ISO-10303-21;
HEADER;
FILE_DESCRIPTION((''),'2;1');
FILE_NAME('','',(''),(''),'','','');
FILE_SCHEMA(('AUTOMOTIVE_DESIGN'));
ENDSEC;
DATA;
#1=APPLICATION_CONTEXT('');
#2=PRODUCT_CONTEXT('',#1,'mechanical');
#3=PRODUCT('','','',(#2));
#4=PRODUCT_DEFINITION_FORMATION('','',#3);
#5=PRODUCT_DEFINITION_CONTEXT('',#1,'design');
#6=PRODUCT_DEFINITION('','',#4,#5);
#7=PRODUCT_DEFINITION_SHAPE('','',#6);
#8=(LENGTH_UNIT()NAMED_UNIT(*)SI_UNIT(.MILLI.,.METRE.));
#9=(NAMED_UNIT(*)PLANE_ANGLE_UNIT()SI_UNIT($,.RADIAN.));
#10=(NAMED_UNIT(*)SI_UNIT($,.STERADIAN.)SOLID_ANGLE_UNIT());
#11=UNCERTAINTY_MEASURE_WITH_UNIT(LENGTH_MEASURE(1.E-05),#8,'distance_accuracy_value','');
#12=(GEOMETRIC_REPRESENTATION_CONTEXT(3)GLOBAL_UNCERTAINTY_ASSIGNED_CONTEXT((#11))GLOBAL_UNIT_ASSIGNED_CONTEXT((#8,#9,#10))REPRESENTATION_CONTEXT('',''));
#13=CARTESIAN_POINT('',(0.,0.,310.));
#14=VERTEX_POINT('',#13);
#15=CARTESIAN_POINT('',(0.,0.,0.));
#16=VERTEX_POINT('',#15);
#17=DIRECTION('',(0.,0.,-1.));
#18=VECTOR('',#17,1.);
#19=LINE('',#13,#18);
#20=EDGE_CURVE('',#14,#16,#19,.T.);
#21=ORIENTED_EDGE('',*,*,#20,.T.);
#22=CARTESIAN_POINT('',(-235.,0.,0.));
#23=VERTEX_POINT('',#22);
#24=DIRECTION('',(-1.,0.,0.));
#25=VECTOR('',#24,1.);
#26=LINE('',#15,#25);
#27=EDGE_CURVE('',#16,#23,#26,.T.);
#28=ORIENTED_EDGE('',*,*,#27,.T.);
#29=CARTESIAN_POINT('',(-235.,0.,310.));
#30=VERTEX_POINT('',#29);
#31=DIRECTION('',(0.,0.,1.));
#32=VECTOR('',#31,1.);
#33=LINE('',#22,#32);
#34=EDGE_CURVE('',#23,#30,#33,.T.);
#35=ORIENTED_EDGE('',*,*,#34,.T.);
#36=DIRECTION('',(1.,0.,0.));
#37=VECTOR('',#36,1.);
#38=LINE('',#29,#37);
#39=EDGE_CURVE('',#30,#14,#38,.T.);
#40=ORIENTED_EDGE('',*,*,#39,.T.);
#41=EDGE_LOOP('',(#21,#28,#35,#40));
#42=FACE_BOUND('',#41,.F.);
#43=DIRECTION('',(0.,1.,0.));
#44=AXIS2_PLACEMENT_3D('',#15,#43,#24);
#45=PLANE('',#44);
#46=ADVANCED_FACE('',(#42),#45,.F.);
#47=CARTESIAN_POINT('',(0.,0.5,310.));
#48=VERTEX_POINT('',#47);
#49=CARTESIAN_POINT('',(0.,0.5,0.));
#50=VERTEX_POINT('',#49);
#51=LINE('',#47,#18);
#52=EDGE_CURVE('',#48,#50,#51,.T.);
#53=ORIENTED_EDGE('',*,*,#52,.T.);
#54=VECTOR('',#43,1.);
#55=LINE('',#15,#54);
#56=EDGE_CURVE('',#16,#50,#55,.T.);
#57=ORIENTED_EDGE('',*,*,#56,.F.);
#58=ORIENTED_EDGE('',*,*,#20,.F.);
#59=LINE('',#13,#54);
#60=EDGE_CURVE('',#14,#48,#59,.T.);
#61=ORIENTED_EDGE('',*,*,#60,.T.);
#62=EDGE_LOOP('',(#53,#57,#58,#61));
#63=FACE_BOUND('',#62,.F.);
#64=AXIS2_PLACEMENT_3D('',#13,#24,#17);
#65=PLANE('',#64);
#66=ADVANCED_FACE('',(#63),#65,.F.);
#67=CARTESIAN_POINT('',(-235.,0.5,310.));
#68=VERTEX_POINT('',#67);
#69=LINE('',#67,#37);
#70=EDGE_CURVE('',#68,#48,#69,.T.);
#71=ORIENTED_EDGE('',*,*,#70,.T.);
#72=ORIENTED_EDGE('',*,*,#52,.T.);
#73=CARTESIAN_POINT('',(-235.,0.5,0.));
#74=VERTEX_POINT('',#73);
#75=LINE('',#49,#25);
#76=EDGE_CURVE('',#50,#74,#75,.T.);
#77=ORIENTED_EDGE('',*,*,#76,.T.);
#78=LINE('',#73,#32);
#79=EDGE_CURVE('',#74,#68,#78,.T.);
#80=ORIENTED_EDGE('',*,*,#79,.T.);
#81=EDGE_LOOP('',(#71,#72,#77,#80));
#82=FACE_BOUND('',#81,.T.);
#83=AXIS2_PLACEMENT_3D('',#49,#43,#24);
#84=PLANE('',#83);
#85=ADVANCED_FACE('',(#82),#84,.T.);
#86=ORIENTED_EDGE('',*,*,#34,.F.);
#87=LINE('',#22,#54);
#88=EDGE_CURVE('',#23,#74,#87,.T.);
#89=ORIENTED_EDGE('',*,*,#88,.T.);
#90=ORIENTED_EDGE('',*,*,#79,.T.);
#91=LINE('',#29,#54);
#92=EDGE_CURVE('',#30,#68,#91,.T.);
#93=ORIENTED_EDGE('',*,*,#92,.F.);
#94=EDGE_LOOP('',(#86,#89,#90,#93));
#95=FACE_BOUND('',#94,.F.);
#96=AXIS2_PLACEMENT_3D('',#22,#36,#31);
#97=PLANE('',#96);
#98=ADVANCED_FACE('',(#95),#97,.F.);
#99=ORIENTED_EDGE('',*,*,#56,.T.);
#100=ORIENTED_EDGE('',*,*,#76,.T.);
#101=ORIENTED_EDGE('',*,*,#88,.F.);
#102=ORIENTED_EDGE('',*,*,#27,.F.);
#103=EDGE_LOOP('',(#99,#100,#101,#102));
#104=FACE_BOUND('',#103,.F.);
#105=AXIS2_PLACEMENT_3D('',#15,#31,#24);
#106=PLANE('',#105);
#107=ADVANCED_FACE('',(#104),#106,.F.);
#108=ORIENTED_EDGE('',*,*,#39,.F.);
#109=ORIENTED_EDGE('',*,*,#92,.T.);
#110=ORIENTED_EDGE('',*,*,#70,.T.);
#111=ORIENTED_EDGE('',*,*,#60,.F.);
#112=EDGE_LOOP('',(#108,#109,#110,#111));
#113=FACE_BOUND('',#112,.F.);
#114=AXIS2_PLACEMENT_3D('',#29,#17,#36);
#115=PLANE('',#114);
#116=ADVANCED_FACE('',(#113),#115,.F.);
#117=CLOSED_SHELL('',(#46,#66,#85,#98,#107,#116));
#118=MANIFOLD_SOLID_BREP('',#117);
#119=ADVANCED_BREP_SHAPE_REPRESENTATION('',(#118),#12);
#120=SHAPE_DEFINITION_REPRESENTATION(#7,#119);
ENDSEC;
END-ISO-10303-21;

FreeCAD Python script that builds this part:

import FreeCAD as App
import Part
import Sketcher
from FreeCAD import Vector


def add_polygon(sketch, points):
    """Adds a closed chain of lines whose ends are joined by coincident constraints."""
    first, n = sketch.GeometryCount, len(points)
    for a, b in zip(points, points[1:] + points[:1]):
        sketch.addGeometry(Part.LineSegment(App.Vector(*a, 0), App.Vector(*b, 0)), False)
    for i in range(n):
        sketch.addConstraint(Sketcher.Constraint("Coincident", first + i, 2, first + (i + 1) % n, 1))

doc = App.newDocument("Part")
params = doc.addObject("Spreadsheet::Sheet", "Params")
for row, (alias, value) in enumerate([
    ("sketch1_width", "235 mm"),
    ("sketch1_height", "310 mm"),
    ("pad1_length", "0.5 mm"),
], start=1):
    params.set(f"A{row}", alias)
    params.set(f"B{row}", "=" + value)
    params.setAlias(f"B{row}", alias)

body = doc.addObject("PartDesign::Body", "Body")

# Sketch on XZ plane
sketch1 = body.newObject("Sketcher::SketchObject", "Sketch")
sketch1.AttachmentSupport = (doc.getObject("XZ_Plane"), [""])
sketch1.MapMode = "FlatFace"
add_polygon(sketch1, [(0, 310), (0, 0), (-235, 0), (-235, 310)])  # lines 0-3
sketch1.addConstraint(Sketcher.Constraint("Vertical", 0))
sketch1.addConstraint(Sketcher.Constraint("Horizontal", 1))
sketch1.addConstraint(Sketcher.Constraint("Vertical", 2))
sketch1.addConstraint(Sketcher.Constraint("Horizontal", 3))
sketch1.addConstraint(Sketcher.Constraint("Coincident", 0, 2, -1, 1))
sketch1.addConstraint(Sketcher.Constraint("DistanceX", 1, 2, 1, 1, 235.0))
sketch1.addConstraint(Sketcher.Constraint("DistanceY", 0, 2, 0, 1, 310.0))
sketch1.setExpression("Constraints[9]", "Params.sketch1_width")
sketch1.setExpression("Constraints[10]", "Params.sketch1_height")
pad1 = body.newObject("PartDesign::Pad", "Pad")
pad1.Profile = sketch1
pad1.setExpression("Length", "Params.pad1_length")
pad1.Reversed = True

doc.recompute()
